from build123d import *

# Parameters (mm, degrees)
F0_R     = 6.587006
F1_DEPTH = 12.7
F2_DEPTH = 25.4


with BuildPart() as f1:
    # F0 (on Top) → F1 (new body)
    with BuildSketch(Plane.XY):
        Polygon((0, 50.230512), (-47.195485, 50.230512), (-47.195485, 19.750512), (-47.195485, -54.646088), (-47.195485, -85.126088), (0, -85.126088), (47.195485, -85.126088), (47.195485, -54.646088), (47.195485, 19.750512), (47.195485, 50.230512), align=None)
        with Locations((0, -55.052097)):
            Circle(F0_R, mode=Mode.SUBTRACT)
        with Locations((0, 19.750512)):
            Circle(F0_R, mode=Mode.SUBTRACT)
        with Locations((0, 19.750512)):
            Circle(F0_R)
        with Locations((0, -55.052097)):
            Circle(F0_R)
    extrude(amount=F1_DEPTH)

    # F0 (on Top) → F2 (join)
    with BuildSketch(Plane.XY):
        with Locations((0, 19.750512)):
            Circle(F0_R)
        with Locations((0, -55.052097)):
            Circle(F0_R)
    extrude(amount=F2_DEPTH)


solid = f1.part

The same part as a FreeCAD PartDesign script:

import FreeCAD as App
import Part
import Sketcher
from FreeCAD import Vector
Q = App.Units.Quantity


def add_polygon(sketch, points):
    """Adds a closed chain of lines whose ends are joined by coincident constraints."""
    first, n = sketch.GeometryCount, len(points)
    for a, b in zip(points, points[1:] + points[:1]):
        sketch.addGeometry(Part.LineSegment(App.Vector(*a, 0), App.Vector(*b, 0)), False)
    for i in range(n):
        sketch.addConstraint(Sketcher.Constraint("Coincident", first + i, 2, first + (i + 1) % n, 1))

doc = App.newDocument("Part")
body = doc.addObject("PartDesign::Body", "Body")

# Sketch on XY plane
sketch1 = body.newObject("Sketcher::SketchObject", "Sketch")
sketch1.AttachmentSupport = (doc.getObject("XY_Plane"), [""])
sketch1.MapMode = "FlatFace"
add_polygon(sketch1, [(-47.195485, 50.230512), (-47.195485, -85.126088), (47.195485, -85.126088), (47.195485, 50.230512)])  # lines 0-3
sketch1.addConstraint(Sketcher.Constraint("Vertical", 0))
sketch1.addConstraint(Sketcher.Constraint("Horizontal", 1))
sketch1.addConstraint(Sketcher.Constraint("Vertical", 2))
sketch1.addConstraint(Sketcher.Constraint("Horizontal", 3))
sketch1.addConstraint(Sketcher.Constraint("DistanceY", 0, 2, 0, 1, Q("5.329 in")))
sketch1.addConstraint(Sketcher.Constraint("DistanceX", 1, 1, 1, 2, Q("94.39097 mm")))
sketch1.addConstraint(Sketcher.Constraint("DistanceY", -1, 1, 2, 2, Q("50.230512 mm")))
sketch1.addConstraint(Sketcher.Constraint("DistanceX", 0, 2, -1, 1, Q("47.195485 mm")))
pad1 = body.newObject("PartDesign::Pad", "Pad")
pad1.Profile = sketch1
pad1.Length = Q("0.5 in")

# Sketch on XY plane
sketch2 = body.newObject("Sketcher::SketchObject", "Sketch001")
sketch2.AttachmentSupport = (doc.getObject("XY_Plane"), [""])
sketch2.MapMode = "FlatFace"
sketch2.addGeometry(Part.Circle(Vector(0, 19.750512, 0), Vector(0, 0, 1), 6.587006), False)
sketch2.addGeometry(Part.Circle(Vector(0, -55.052097, 0), Vector(0, 0, 1), 6.587006), False)
sketch2.addConstraint(Sketcher.Constraint("Equal", 0, 1))
sketch2.addConstraint(Sketcher.Constraint("PointOnObject", 0, 3, -2))
sketch2.addConstraint(Sketcher.Constraint("PointOnObject", 1, 3, -2))
sketch2.addConstraint(Sketcher.Constraint("Diameter", 0, Q("13.174012 mm")))
sketch2.addConstraint(Sketcher.Constraint("DistanceY", 1, 3, 0, 3, Q("74.802609 mm")))
sketch2.addConstraint(Sketcher.Constraint("DistanceY", -1, 1, 0, 3, Q("19.750512 mm")))
pad2 = body.newObject("PartDesign::Pad", "Pad001")
pad2.Profile = sketch2
pad2.Length = Q("1 in")

doc.recompute()
